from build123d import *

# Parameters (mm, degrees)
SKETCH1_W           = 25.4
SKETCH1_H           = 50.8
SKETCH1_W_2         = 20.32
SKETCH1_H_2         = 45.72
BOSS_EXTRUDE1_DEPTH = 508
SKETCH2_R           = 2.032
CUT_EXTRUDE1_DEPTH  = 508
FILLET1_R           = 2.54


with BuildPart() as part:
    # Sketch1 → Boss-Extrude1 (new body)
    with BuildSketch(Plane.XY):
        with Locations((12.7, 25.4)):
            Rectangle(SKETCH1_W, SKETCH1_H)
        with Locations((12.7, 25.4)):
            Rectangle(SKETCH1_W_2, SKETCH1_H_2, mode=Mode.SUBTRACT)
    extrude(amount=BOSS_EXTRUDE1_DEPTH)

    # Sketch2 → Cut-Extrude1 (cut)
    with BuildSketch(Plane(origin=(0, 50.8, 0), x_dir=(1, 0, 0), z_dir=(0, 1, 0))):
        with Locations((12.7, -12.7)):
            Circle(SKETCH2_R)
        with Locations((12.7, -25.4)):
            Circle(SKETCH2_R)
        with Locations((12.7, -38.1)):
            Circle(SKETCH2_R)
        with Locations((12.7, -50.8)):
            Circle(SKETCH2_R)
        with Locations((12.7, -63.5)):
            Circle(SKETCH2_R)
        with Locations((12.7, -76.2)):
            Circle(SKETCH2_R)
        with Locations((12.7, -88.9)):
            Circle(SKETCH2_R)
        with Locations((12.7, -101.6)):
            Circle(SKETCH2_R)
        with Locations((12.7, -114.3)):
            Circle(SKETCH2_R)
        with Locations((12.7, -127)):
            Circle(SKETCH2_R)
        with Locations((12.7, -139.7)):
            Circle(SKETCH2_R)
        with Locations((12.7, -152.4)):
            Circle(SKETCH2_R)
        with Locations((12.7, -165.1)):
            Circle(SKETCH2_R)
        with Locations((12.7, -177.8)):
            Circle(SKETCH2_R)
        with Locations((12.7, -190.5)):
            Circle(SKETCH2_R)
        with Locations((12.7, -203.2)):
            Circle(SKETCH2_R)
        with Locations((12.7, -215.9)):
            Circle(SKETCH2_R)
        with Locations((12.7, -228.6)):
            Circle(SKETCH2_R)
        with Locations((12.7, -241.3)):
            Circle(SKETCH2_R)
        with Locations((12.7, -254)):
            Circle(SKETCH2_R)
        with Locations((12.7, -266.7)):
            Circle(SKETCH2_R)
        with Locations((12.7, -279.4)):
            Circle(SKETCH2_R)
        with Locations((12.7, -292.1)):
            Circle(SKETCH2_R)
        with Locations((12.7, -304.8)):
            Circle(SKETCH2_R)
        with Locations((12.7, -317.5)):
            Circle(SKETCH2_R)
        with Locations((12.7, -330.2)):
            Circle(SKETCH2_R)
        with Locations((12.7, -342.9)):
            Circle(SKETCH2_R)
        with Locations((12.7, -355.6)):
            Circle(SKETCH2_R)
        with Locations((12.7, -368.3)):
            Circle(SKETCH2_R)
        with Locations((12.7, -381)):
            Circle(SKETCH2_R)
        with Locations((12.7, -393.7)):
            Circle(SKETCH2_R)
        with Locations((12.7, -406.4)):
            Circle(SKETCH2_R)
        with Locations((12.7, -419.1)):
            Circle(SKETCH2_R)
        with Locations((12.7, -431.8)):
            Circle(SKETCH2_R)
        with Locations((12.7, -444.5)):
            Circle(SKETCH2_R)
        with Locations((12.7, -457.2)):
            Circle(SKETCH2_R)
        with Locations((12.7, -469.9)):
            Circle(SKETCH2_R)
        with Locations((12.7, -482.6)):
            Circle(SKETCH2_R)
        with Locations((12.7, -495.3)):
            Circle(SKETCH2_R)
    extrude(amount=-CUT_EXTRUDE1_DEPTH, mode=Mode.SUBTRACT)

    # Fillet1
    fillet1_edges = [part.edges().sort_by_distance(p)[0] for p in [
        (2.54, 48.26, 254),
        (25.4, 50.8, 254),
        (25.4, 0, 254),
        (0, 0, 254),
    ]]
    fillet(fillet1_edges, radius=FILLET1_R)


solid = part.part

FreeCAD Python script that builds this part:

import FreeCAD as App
import Part
import Sketcher
from FreeCAD import Vector
Q = App.Units.Quantity


def edges_at(feature, points):
    """Names of the edges that pass closest to the given points."""
    edges = feature.Shape.Edges
    near = lambda p: min(range(len(edges)), key=lambda i: edges[i].distToShape(Part.Vertex(*p))[0])
    return sorted({f"Edge{near(p) + 1}" for p in points})

doc = App.newDocument("Part")
params = doc.addObject("Spreadsheet::Sheet", "Params")
for row, (alias, value) in enumerate([
    ("sketch1_width", "1 in"),
    ("sketch1_height", "2 in"),
    ("sketch1_width2", "0.8 in"),
    ("sketch1_height2", "1.8 in"),
    ("pad1_length", "20 in"),
    ("sketch2_diameter", "0.16 in"),
    ("pocket1_length", "20 in"),
    ("fillet_radius", "0.1 in"),
], start=1):
    params.set(f"A{row}", alias)
    params.set(f"B{row}", "=" + value)
    params.setAlias(f"B{row}", alias)

body = doc.addObject("PartDesign::Body", "Body")

# Sketch on XY plane
sketch1 = doc.addObject("Sketcher::SketchObject", "Sketch")
body.addObject(sketch1)
sketch1.AttachmentSupport = (doc.XY_Plane, [""])
sketch1.MapMode = "FlatFace"
sketch1.addGeometry([
    Part.LineSegment(Vector(0, 51, 0), Vector(0, 0, 0)),  # 0
    Part.LineSegment(Vector(0, 0, 0), Vector(25, 0, 0)),  # 1
    Part.LineSegment(Vector(25, 0, 0), Vector(25, 51, 0)),  # 2
    Part.LineSegment(Vector(25, 51, 0), Vector(0, 51, 0)),  # 3
    Part.LineSegment(Vector(23, 3, 0), Vector(3, 3, 0)),  # 4
    Part.LineSegment(Vector(3, 3, 0), Vector(3, 48, 0)),  # 5
    Part.LineSegment(Vector(3, 48, 0), Vector(23, 48, 0)),  # 6
    Part.LineSegment(Vector(23, 48, 0), Vector(23, 3, 0)),  # 7
], False)
sketch1.addConstraint([
    Sketcher.Constraint("Coincident", 0, 2, 1, 1),
    Sketcher.Constraint("Coincident", 1, 2, 2, 1),
    Sketcher.Constraint("Coincident", 2, 2, 3, 1),
    Sketcher.Constraint("Coincident", 3, 2, 0, 1),
    Sketcher.Constraint("Coincident", 4, 2, 5, 1),
    Sketcher.Constraint("Coincident", 5, 2, 6, 1),
    Sketcher.Constraint("Coincident", 6, 2, 7, 1),
    Sketcher.Constraint("Coincident", 7, 2, 4, 1),
    Sketcher.Constraint("Vertical", 0),
    Sketcher.Constraint("Horizontal", 1),
    Sketcher.Constraint("Vertical", 2),
    Sketcher.Constraint("Horizontal", 3),
    Sketcher.Constraint("Horizontal", 4),
    Sketcher.Constraint("Vertical", 5),
    Sketcher.Constraint("Horizontal", 6),
    Sketcher.Constraint("Vertical", 7),
    Sketcher.Constraint("Coincident", 0, 2, -1, 1),
    Sketcher.Constraint("DistanceX", 1, 1, 1, 2, Q("1 in")),
    Sketcher.Constraint("DistanceY", 0, 2, 0, 1, Q("2 in")),
    Sketcher.Constraint("DistanceX", 4, 2, 4, 1, Q("0.8 in")),
    Sketcher.Constraint("DistanceY", 5, 1, 5, 2, Q("1.8 in")),
    Sketcher.Constraint("DistanceX", -1, 1, 4, 2, Q("0.1 in")),
    Sketcher.Constraint("DistanceY", -1, 1, 4, 2, Q("0.1 in")),
])
sketch1.setExpression("Constraints[17]", "Params.sketch1_width")
sketch1.setExpression("Constraints[18]", "Params.sketch1_height")
sketch1.setExpression("Constraints[19]", "Params.sketch1_width2")
sketch1.setExpression("Constraints[20]", "Params.sketch1_height2")
pad1 = doc.addObject("PartDesign::Pad", "Pad")
body.addObject(pad1)
pad1.Profile = sketch1
pad1.setExpression("Length", "Params.pad1_length")

# Sketch on XZ plane
sketch2 = doc.addObject("Sketcher::SketchObject", "Sketch001")
body.addObject(sketch2)
sketch2.AttachmentSupport = (doc.XZ_Plane, [""])
sketch2.MapMode = "FlatFace"
sketch2.AttachmentOffset = App.Placement(Vector(0, 0, -2 * 25.4), App.Rotation())
sketch2.addGeometry([
    Part.Circle(Vector(12.7, 12.7, 0), Vector(0, 0, 1), 2),  # 0
    Part.Circle(Vector(12.7, 25.4, 0), Vector(0, 0, 1), 2),  # 1
    Part.Circle(Vector(12.7, 38.1, 0), Vector(0, 0, 1), 2),  # 2
    Part.Circle(Vector(12.7, 50.8, 0), Vector(0, 0, 1), 2),  # 3
    Part.Circle(Vector(12.7, 63.5, 0), Vector(0, 0, 1), 2),  # 4
    Part.Circle(Vector(12.7, 76.2, 0), Vector(0, 0, 1), 2),  # 5
    Part.Circle(Vector(12.7, 88.9, 0), Vector(0, 0, 1), 2),  # 6
    Part.Circle(Vector(12.7, 101.6, 0), Vector(0, 0, 1), 2),  # 7
    Part.Circle(Vector(12.7, 114.3, 0), Vector(0, 0, 1), 2),  # 8
    Part.Circle(Vector(12.7, 127, 0), Vector(0, 0, 1), 2),  # 9
    Part.Circle(Vector(12.7, 139.7, 0), Vector(0, 0, 1), 2),  # 10
    Part.Circle(Vector(12.7, 152.4, 0), Vector(0, 0, 1), 2),  # 11
    Part.Circle(Vector(12.7, 165.1, 0), Vector(0, 0, 1), 2),  # 12
    Part.Circle(Vector(12.7, 177.8, 0), Vector(0, 0, 1), 2),  # 13
    Part.Circle(Vector(12.7, 190.5, 0), Vector(0, 0, 1), 2),  # 14
    Part.Circle(Vector(12.7, 203.2, 0), Vector(0, 0, 1), 2),  # 15
    Part.Circle(Vector(12.7, 215.9, 0), Vector(0, 0, 1), 2),  # 16
    Part.Circle(Vector(12.7, 228.6, 0), Vector(0, 0, 1), 2),  # 17
    Part.Circle(Vector(12.7, 241.3, 0), Vector(0, 0, 1), 2),  # 18
    Part.Circle(Vector(12.7, 254, 0), Vector(0, 0, 1), 2),  # 19
    Part.Circle(Vector(12.7, 266.7, 0), Vector(0, 0, 1), 2),  # 20
    Part.Circle(Vector(12.7, 279.4, 0), Vector(0, 0, 1), 2),  # 21
    Part.Circle(Vector(12.7, 292.1, 0), Vector(0, 0, 1), 2),  # 22
    Part.Circle(Vector(12.7, 304.8, 0), Vector(0, 0, 1), 2),  # 23
    Part.Circle(Vector(12.7, 317.5, 0), Vector(0, 0, 1), 2),  # 24
    Part.Circle(Vector(12.7, 330.2, 0), Vector(0, 0, 1), 2),  # 25
    Part.Circle(Vector(12.7, 342.9, 0), Vector(0, 0, 1), 2),  # 26
    Part.Circle(Vector(12.7, 355.6, 0), Vector(0, 0, 1), 2),  # 27
    Part.Circle(Vector(12.7, 368.3, 0), Vector(0, 0, 1), 2),  # 28
    Part.Circle(Vector(12.7, 381, 0), Vector(0, 0, 1), 2),  # 29
    Part.Circle(Vector(12.7, 393.7, 0), Vector(0, 0, 1), 2),  # 30
    Part.Circle(Vector(12.7, 406.4, 0), Vector(0, 0, 1), 2),  # 31
    Part.Circle(Vector(12.7, 419.1, 0), Vector(0, 0, 1), 2),  # 32
    Part.Circle(Vector(12.7, 431.8, 0), Vector(0, 0, 1), 2),  # 33
    Part.Circle(Vector(12.7, 444.5, 0), Vector(0, 0, 1), 2),  # 34
    Part.Circle(Vector(12.7, 457.2, 0), Vector(0, 0, 1), 2),  # 35
    Part.Circle(Vector(12.7, 469.9, 0), Vector(0, 0, 1), 2),  # 36
    Part.Circle(Vector(12.7, 482.6, 0), Vector(0, 0, 1), 2),  # 37
    Part.Circle(Vector(12.7, 495.3, 0), Vector(0, 0, 1), 2),  # 38
], False)
sketch2.addConstraint([
    Sketcher.Constraint("Equal", 0, 1),
    Sketcher.Constraint("Equal", 1, 2),
    Sketcher.Constraint("Equal", 2, 3),
    Sketcher.Constraint("Equal", 3, 4),
    Sketcher.Constraint("Equal", 4, 5),
    Sketcher.Constraint("Equal", 5, 6),
    Sketcher.Constraint("Equal", 6, 7),
    Sketcher.Constraint("Equal", 7, 8),
    Sketcher.Constraint("Equal", 8, 9),
    Sketcher.Constraint("Equal", 9, 10),
    Sketcher.Constraint("Equal", 10, 11),
    Sketcher.Constraint("Equal", 11, 12),
    Sketcher.Constraint("Equal", 12, 13),
    Sketcher.Constraint("Equal", 13, 14),
    Sketcher.Constraint("Equal", 14, 15),
    Sketcher.Constraint("Equal", 15, 16),
    Sketcher.Constraint("Equal", 16, 17),
    Sketcher.Constraint("Equal", 17, 18),
    Sketcher.Constraint("Equal", 18, 19),
    Sketcher.Constraint("Equal", 19, 20),
    Sketcher.Constraint("Equal", 20, 21),
    Sketcher.Constraint("Equal", 21, 22),
    Sketcher.Constraint("Equal", 22, 23),
    Sketcher.Constraint("Equal", 23, 24),
    Sketcher.Constraint("Equal", 24, 25),
    Sketcher.Constraint("Equal", 25, 26),
    Sketcher.Constraint("Equal", 26, 27),
    Sketcher.Constraint("Equal", 27, 28),
    Sketcher.Constraint("Equal", 28, 29),
    Sketcher.Constraint("Equal", 29, 30),
    Sketcher.Constraint("Equal", 30, 31),
    Sketcher.Constraint("Equal", 31, 32),
    Sketcher.Constraint("Equal", 32, 33),
    Sketcher.Constraint("Equal", 33, 34),
    Sketcher.Constraint("Equal", 34, 35),
    Sketcher.Constraint("Equal", 35, 36),
    Sketcher.Constraint("Equal", 36, 37),
    Sketcher.Constraint("Equal", 37, 38),
    Sketcher.Constraint("Vertical", 0, 3, 1, 3),
    Sketcher.Constraint("Vertical", 1, 3, 2, 3),
    Sketcher.Constraint("Vertical", 2, 3, 3, 3),
    Sketcher.Constraint("Vertical", 3, 3, 4, 3),
    Sketcher.Constraint("Vertical", 4, 3, 5, 3),
    Sketcher.Constraint("Vertical", 5, 3, 6, 3),
    Sketcher.Constraint("Vertical", 6, 3, 7, 3),
    Sketcher.Constraint("Vertical", 7, 3, 8, 3),
    Sketcher.Constraint("Vertical", 8, 3, 9, 3),
    Sketcher.Constraint("Vertical", 9, 3, 10, 3),
    Sketcher.Constraint("Vertical", 10, 3, 11, 3),
    Sketcher.Constraint("Vertical", 11, 3, 12, 3),
    Sketcher.Constraint("Vertical", 12, 3, 13, 3),
    Sketcher.Constraint("Vertical", 13, 3, 14, 3),
    Sketcher.Constraint("Vertical", 14, 3, 15, 3),
    Sketcher.Constraint("Vertical", 15, 3, 16, 3),
    Sketcher.Constraint("Vertical", 16, 3, 17, 3),
    Sketcher.Constraint("Vertical", 17, 3, 18, 3),
    Sketcher.Constraint("Vertical", 18, 3, 19, 3),
    Sketcher.Constraint("Vertical", 19, 3, 20, 3),
    Sketcher.Constraint("Vertical", 20, 3, 21, 3),
    Sketcher.Constraint("Vertical", 21, 3, 22, 3),
    Sketcher.Constraint("Vertical", 22, 3, 23, 3),
    Sketcher.Constraint("Vertical", 23, 3, 24, 3),
    Sketcher.Constraint("Vertical", 24, 3, 25, 3),
    Sketcher.Constraint("Vertical", 25, 3, 26, 3),
    Sketcher.Constraint("Vertical", 26, 3, 27, 3),
    Sketcher.Constraint("Vertical", 27, 3, 28, 3),
    Sketcher.Constraint("Vertical", 28, 3, 29, 3),
    Sketcher.Constraint("Vertical", 29, 3, 30, 3),
    Sketcher.Constraint("Vertical", 30, 3, 31, 3),
    Sketcher.Constraint("Vertical", 31, 3, 32, 3),
    Sketcher.Constraint("Vertical", 32, 3, 33, 3),
    Sketcher.Constraint("Vertical", 33, 3, 34, 3),
    Sketcher.Constraint("Vertical", 34, 3, 35, 3),
    Sketcher.Constraint("Vertical", 35, 3, 36, 3),
    Sketcher.Constraint("Vertical", 36, 3, 37, 3),
    Sketcher.Constraint("Vertical", 37, 3, 38, 3),
    Sketcher.Constraint("Diameter", 0, Q("0.16 in")),
    Sketcher.Constraint("DistanceY", -1, 1, 1, 3, Q("1 in")),
    Sketcher.Constraint("DistanceY", -1, 1, 3, 3, Q("2 in")),
    Sketcher.Constraint("DistanceY", -1, 1, 5, 3, Q("3 in")),
    Sketcher.Constraint("DistanceY", -1, 1, 7, 3, Q("4 in")),
    Sketcher.Constraint("DistanceY", -1, 1, 9, 3, Q("5 in")),
    Sketcher.Constraint("DistanceY", -1, 1, 11, 3, Q("6 in")),
    Sketcher.Constraint("DistanceY", -1, 1, 13, 3, Q("7 in")),
    Sketcher.Constraint("DistanceY", -1, 1, 15, 3, Q("8 in")),
    Sketcher.Constraint("DistanceY", -1, 1, 17, 3, Q("9 in")),
    Sketcher.Constraint("DistanceY", -1, 1, 19, 3, Q("10 in")),
    Sketcher.Constraint("DistanceY", -1, 1, 21, 3, Q("11 in")),
    Sketcher.Constraint("DistanceY", -1, 1, 23, 3, Q("12 in")),
    Sketcher.Constraint("DistanceY", -1, 1, 25, 3, Q("13 in")),
    Sketcher.Constraint("DistanceY", -1, 1, 27, 3, Q("14 in")),
    Sketcher.Constraint("DistanceY", -1, 1, 29, 3, Q("15 in")),
    Sketcher.Constraint("DistanceY", -1, 1, 31, 3, Q("16 in")),
    Sketcher.Constraint("DistanceY", -1, 1, 33, 3, Q("17 in")),
    Sketcher.Constraint("DistanceY", -1, 1, 35, 3, Q("18 in")),
    Sketcher.Constraint("DistanceY", -1, 1, 37, 3, Q("19 in")),
    Sketcher.Constraint("DistanceY", 0, 3, 2, 3, Q("1 in")),
    Sketcher.Constraint("DistanceY", 2, 3, 4, 3, Q("1 in")),
    Sketcher.Constraint("DistanceY", 4, 3, 6, 3, Q("1 in")),
    Sketcher.Constraint("DistanceY", 6, 3, 8, 3, Q("1 in")),
    Sketcher.Constraint("DistanceY", 8, 3, 10, 3, Q("1 in")),
    Sketcher.Constraint("DistanceY", 10, 3, 12, 3, Q("1 in")),
    Sketcher.Constraint("DistanceY", 12, 3, 14, 3, Q("1 in")),
    Sketcher.Constraint("DistanceY", 14, 3, 16, 3, Q("1 in")),
    Sketcher.Constraint("DistanceY", 16, 3, 18, 3, Q("1 in")),
    Sketcher.Constraint("DistanceY", 18, 3, 20, 3, Q("1 in")),
    Sketcher.Constraint("DistanceY", 20, 3, 22, 3, Q("1 in")),
    Sketcher.Constraint("DistanceY", 22, 3, 24, 3, Q("1 in")),
    Sketcher.Constraint("DistanceY", 24, 3, 26, 3, Q("1 in")),
    Sketcher.Constraint("DistanceY", 26, 3, 28, 3, Q("1 in")),
    Sketcher.Constraint("DistanceY", 28, 3, 30, 3, Q("1 in")),
    Sketcher.Constraint("DistanceY", 30, 3, 32, 3, Q("1 in")),
    Sketcher.Constraint("DistanceY", 32, 3, 34, 3, Q("1 in")),
    Sketcher.Constraint("DistanceY", 34, 3, 36, 3, Q("1 in")),
    Sketcher.Constraint("DistanceY", 36, 3, 38, 3, Q("1 in")),
    Sketcher.Constraint("DistanceX", -1, 1, 0, 3, Q("0.5 in")),
    Sketcher.Constraint("DistanceY", -1, 1, 0, 3, Q("0.5 in")),
])
sketch2.setExpression("Constraints[76]", "Params.sketch2_diameter")
pocket1 = doc.addObject("PartDesign::Pocket", "Pocket")
body.addObject(pocket1)
pocket1.Profile = sketch2
pocket1.setExpression("Length", "Params.pocket1_length")
pocket1.Reversed = True
doc.recompute()

fillet = doc.addObject("PartDesign::Fillet", "Fillet")
body.addObject(fillet)
fillet.Base = (pocket1, edges_at(pocket1, [
    (2.54, 48.26, 254),
    (25.4, 50.8, 254),
    (25.4, 0, 254),
    (0, 0, 254),
]))
fillet.setExpression("Radius", "Params.fillet_radius")

doc.recompute()
